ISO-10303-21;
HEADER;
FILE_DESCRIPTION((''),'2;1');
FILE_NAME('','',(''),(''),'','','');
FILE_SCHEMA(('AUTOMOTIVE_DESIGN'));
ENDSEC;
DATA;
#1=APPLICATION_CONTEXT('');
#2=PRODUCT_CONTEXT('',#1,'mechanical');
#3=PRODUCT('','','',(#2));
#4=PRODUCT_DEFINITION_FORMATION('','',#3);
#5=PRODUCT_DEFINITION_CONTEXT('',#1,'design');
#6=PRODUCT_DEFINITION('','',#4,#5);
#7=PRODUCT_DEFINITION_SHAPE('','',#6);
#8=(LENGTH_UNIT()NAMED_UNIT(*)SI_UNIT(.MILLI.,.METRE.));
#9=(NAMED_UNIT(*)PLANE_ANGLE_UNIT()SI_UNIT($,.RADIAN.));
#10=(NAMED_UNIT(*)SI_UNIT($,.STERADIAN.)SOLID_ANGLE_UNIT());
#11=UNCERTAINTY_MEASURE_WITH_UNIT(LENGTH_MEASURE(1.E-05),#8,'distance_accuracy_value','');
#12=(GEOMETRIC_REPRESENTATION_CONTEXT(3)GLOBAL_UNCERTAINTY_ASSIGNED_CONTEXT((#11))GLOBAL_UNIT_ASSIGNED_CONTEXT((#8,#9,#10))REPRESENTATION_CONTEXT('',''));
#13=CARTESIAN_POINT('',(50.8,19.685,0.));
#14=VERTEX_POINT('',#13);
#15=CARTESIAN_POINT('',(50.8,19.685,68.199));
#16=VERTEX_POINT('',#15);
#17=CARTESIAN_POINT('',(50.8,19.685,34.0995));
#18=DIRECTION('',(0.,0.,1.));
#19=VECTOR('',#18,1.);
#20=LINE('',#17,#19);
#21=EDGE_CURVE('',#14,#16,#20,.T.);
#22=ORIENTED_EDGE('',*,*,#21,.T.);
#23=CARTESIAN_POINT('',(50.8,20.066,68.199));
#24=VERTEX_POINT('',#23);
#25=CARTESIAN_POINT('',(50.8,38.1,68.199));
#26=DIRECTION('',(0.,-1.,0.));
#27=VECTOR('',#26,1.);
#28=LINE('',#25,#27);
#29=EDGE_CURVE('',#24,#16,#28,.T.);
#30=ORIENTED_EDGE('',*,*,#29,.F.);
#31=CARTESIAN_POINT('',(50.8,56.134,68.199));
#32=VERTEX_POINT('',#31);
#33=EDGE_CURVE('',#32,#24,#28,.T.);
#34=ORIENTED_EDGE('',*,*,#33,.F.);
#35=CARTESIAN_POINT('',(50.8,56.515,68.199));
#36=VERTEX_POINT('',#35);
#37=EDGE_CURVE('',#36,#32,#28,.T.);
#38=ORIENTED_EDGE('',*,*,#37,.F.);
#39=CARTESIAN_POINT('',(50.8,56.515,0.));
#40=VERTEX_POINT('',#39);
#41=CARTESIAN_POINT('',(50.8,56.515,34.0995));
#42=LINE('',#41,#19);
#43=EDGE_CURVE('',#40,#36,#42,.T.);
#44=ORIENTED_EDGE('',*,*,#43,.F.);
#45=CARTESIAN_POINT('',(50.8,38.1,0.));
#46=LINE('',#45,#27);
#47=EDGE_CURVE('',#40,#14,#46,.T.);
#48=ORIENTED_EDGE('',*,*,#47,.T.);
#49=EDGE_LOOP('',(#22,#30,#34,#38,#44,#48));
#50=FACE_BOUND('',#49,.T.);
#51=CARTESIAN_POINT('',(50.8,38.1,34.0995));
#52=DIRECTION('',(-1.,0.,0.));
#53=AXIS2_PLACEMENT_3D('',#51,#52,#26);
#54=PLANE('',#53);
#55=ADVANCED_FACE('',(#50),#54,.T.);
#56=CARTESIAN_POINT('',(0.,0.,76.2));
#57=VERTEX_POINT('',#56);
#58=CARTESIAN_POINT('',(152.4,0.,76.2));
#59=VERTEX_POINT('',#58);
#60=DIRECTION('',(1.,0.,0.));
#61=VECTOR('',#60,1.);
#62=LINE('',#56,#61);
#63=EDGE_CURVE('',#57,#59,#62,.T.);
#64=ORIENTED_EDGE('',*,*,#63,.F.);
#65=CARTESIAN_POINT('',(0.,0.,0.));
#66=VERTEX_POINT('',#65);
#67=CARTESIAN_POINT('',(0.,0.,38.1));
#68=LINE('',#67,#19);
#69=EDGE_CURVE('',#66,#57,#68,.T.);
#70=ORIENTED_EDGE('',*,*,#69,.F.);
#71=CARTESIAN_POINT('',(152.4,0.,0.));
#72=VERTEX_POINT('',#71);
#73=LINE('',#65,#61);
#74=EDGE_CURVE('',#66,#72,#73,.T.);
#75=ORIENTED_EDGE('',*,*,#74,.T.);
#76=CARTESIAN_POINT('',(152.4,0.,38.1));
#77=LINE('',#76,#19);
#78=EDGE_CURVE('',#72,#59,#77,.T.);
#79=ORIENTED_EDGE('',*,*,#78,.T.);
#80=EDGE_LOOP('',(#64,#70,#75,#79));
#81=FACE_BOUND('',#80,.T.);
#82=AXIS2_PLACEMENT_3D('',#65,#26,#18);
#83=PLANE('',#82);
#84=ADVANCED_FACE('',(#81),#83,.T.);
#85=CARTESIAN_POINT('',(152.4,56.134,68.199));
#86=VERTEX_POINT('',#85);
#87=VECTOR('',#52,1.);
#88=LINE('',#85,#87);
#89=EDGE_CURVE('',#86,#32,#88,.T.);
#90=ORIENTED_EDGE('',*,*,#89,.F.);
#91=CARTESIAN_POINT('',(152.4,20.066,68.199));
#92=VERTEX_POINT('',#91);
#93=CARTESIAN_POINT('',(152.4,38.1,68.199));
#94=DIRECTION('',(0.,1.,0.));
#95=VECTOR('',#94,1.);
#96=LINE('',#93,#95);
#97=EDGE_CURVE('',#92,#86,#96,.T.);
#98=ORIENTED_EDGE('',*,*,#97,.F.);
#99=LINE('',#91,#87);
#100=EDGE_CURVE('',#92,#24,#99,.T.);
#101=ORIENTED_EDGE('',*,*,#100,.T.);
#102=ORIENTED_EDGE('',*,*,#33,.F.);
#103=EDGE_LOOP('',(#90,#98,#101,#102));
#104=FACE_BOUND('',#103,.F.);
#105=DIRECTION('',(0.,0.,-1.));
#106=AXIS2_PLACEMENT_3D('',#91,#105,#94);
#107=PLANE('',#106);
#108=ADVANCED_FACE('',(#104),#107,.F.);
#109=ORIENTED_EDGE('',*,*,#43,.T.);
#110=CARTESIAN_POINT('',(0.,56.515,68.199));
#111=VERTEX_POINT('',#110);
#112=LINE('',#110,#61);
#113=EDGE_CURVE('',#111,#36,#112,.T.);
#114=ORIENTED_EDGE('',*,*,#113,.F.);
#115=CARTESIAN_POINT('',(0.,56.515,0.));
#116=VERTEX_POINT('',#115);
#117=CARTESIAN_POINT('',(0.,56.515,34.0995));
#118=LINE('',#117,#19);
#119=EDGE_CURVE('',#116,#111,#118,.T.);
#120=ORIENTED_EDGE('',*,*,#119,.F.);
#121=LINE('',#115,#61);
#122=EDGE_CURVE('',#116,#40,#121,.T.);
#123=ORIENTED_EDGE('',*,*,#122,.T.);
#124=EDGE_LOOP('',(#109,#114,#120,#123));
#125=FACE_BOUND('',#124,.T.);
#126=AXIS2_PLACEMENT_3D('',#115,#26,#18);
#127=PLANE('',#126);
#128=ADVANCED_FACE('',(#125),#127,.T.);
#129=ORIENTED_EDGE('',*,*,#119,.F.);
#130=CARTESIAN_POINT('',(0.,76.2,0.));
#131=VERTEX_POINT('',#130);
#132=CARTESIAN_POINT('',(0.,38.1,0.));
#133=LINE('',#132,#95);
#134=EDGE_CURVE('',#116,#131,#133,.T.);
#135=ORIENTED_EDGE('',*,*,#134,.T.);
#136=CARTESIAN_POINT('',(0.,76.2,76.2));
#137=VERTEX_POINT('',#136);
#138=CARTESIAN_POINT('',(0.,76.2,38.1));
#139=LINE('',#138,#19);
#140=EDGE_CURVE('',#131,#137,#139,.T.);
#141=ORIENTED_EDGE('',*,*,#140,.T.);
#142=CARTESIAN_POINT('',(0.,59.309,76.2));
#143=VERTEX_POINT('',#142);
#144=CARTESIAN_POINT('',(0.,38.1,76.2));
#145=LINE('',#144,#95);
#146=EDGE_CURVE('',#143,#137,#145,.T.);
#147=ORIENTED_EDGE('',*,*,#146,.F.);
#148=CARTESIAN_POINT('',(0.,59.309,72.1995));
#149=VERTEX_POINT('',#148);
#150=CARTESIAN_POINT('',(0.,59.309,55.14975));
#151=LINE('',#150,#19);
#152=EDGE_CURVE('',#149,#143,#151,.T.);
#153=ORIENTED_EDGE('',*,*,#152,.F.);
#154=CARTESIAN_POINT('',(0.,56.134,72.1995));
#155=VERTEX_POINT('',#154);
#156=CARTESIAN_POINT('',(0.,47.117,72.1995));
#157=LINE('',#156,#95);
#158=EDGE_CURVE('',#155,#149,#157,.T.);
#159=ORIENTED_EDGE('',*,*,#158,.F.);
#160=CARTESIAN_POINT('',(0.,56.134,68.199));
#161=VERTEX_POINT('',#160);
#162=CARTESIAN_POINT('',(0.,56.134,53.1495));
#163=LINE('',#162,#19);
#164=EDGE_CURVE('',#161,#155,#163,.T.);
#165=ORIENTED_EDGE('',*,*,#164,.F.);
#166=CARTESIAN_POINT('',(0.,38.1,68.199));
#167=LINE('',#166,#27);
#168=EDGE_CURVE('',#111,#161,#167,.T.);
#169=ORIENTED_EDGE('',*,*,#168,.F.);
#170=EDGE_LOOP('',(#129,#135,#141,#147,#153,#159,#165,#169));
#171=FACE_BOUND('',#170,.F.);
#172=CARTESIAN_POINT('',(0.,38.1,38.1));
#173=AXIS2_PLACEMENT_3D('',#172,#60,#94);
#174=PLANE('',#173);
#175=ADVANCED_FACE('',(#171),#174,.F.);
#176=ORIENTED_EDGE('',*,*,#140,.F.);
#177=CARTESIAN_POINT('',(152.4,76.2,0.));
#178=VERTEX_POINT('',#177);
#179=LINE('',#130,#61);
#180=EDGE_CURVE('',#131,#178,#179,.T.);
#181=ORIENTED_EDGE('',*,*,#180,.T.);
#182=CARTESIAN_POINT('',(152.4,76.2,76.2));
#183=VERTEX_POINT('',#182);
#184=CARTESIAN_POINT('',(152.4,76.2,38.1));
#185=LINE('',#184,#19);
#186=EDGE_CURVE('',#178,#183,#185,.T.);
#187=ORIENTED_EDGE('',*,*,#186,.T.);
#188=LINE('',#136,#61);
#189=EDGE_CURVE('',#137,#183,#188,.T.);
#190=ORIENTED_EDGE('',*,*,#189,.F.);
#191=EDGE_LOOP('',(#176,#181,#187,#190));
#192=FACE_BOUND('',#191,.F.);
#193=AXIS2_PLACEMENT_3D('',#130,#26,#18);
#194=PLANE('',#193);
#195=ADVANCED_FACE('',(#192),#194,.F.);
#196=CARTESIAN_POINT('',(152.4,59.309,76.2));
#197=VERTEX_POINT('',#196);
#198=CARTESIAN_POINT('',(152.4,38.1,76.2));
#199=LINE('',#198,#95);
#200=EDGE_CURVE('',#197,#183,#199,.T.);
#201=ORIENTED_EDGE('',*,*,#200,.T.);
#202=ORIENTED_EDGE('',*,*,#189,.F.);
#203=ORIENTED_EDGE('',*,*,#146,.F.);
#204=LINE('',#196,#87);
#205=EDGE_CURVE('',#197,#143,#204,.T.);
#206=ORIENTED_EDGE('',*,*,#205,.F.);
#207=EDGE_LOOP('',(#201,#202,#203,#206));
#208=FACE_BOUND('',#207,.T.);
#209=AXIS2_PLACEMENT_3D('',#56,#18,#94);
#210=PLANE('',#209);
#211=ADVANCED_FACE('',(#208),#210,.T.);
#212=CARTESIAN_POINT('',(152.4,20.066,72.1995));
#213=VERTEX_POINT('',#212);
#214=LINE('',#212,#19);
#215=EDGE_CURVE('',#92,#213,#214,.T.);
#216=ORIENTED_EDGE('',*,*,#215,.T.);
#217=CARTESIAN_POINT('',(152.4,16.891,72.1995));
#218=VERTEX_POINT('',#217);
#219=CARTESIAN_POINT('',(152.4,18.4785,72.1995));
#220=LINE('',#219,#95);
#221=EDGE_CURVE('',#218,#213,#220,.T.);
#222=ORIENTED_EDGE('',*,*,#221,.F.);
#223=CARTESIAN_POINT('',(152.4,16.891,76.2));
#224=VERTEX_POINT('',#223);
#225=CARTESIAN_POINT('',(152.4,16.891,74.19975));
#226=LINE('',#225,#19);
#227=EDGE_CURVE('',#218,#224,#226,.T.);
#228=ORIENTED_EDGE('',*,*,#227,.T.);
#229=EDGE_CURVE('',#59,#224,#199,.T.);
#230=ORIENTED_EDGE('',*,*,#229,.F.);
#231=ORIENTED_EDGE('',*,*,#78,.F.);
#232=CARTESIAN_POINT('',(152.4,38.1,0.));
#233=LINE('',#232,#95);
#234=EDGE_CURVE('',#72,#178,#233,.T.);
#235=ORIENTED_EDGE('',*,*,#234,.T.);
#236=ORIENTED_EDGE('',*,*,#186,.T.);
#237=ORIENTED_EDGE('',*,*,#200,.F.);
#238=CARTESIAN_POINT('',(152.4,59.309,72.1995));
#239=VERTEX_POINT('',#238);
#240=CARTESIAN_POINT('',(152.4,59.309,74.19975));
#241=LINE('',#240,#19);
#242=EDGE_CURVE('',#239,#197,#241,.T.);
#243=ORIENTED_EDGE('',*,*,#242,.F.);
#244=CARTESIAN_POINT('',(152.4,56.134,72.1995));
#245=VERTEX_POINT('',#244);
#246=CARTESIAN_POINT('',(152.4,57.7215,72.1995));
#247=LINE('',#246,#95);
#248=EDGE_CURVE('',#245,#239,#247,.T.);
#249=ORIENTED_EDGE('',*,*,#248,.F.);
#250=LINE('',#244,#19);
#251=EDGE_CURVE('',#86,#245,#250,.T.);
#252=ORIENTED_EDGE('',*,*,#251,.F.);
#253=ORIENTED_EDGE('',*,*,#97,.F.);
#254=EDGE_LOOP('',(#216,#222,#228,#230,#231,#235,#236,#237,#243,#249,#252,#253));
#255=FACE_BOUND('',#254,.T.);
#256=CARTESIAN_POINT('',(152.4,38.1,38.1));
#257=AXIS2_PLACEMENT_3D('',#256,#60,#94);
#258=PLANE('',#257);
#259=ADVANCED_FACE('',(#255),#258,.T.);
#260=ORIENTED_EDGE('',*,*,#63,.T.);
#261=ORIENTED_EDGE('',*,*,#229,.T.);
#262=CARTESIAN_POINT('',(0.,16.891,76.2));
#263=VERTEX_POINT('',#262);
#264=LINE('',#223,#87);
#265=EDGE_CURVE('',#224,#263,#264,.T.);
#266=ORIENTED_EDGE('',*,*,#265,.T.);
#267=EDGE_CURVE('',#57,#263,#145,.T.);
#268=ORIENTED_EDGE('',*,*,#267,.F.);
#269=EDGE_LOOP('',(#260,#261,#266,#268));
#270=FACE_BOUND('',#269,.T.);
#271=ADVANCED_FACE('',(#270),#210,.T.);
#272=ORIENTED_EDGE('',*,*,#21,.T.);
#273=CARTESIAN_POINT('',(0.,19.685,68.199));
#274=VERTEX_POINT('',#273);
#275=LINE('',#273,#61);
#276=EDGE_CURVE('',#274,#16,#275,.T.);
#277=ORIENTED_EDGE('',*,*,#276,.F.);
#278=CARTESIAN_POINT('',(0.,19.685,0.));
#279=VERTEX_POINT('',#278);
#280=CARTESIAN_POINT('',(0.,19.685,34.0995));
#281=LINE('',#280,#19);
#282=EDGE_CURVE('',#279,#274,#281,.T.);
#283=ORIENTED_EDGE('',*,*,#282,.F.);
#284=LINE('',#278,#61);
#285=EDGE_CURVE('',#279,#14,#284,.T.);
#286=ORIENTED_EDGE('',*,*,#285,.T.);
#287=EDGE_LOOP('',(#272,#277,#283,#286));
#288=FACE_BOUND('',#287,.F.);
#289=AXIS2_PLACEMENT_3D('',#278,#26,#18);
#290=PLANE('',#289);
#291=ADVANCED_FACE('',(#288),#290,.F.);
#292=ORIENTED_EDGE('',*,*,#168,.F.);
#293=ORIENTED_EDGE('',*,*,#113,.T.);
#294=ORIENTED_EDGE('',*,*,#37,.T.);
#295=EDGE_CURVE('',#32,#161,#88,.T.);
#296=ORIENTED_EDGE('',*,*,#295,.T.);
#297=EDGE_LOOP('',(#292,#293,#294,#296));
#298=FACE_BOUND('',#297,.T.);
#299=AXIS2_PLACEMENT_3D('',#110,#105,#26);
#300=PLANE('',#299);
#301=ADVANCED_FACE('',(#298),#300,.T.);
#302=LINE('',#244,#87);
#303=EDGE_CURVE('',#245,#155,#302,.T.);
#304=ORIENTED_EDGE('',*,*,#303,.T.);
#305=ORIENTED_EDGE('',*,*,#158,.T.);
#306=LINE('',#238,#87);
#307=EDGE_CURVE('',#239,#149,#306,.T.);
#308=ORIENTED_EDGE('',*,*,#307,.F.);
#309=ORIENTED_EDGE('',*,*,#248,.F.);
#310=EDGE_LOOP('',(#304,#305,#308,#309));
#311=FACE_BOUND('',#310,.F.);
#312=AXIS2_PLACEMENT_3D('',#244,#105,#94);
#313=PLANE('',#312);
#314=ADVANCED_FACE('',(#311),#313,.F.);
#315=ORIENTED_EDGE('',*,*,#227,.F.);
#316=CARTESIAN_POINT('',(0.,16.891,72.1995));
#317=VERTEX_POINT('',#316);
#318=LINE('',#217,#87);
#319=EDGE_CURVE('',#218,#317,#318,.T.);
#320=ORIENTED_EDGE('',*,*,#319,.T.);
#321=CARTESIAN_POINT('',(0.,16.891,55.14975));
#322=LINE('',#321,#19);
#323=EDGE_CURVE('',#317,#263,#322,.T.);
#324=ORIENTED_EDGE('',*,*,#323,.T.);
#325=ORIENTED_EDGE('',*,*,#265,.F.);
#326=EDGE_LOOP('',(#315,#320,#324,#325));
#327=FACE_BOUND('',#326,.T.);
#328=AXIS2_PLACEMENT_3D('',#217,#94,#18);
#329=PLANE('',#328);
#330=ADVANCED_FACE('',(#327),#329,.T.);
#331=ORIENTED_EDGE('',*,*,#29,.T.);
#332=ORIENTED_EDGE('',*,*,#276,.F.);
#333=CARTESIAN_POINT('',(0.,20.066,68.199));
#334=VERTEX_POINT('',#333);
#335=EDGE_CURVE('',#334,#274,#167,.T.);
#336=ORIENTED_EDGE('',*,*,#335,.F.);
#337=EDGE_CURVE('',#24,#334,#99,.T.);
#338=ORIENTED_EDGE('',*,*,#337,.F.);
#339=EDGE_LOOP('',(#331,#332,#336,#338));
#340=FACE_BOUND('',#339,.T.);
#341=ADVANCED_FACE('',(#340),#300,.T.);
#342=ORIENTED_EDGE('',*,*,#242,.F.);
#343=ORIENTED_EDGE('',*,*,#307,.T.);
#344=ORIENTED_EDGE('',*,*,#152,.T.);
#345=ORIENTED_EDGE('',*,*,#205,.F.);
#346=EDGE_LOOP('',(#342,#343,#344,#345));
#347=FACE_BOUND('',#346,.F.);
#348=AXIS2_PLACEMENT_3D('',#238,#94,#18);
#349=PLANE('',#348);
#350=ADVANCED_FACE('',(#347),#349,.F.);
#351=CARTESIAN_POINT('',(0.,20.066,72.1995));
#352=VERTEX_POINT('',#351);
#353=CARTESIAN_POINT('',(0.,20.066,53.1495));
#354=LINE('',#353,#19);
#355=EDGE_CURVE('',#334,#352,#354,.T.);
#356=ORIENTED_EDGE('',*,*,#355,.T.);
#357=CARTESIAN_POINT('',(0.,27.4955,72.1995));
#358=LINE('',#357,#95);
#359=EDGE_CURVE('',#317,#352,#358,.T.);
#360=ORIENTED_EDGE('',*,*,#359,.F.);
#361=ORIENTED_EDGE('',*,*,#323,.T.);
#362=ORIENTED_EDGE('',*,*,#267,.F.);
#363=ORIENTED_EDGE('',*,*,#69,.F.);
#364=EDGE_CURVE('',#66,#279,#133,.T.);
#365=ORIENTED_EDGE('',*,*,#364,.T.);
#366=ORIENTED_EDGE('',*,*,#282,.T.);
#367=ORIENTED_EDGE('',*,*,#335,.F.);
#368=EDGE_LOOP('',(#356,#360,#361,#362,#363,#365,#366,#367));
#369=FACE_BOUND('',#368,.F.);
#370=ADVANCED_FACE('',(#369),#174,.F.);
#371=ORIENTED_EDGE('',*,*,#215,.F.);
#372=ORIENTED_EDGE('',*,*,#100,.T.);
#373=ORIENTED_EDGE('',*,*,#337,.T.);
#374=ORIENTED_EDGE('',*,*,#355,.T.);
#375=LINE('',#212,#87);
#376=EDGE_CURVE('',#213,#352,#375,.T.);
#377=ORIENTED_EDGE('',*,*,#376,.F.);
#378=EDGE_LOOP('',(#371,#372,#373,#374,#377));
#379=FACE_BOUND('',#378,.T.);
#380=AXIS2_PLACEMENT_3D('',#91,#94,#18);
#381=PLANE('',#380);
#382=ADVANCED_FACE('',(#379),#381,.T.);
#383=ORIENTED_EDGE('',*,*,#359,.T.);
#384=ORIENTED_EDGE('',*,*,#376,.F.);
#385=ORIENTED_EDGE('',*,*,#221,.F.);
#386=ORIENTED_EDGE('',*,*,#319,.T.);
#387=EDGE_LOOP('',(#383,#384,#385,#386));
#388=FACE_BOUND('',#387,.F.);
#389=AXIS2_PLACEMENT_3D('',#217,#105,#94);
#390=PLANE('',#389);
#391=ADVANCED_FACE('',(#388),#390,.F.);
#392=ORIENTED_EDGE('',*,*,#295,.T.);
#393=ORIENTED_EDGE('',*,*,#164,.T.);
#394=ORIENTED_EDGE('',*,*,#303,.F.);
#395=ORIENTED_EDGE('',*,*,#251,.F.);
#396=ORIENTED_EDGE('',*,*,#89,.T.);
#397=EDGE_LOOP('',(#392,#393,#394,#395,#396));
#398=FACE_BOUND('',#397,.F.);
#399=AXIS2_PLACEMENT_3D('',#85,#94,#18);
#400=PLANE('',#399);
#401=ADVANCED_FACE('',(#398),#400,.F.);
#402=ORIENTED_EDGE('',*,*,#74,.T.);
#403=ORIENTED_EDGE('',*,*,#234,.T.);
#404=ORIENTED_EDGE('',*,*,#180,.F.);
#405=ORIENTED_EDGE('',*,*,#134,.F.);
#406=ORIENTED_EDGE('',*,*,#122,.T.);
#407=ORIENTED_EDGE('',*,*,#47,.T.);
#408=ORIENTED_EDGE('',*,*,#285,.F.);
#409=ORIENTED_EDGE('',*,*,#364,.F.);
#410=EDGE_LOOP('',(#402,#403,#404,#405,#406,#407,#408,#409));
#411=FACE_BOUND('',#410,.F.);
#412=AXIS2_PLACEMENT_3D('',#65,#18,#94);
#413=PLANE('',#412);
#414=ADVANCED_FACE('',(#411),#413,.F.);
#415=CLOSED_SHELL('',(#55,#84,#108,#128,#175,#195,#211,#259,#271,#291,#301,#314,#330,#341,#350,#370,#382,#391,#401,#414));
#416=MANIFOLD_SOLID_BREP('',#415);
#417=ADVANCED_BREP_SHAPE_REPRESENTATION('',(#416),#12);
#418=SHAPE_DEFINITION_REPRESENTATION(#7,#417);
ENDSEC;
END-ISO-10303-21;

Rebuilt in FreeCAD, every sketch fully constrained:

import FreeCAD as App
import Part
import Sketcher

V = App.Vector
Q = App.Units.Quantity


def add_polygon(sketch, points):
    """Adds a closed chain of lines whose ends are joined by coincident constraints."""
    first, n = sketch.GeometryCount, len(points)
    for a, b in zip(points, points[1:] + points[:1]):
        sketch.addGeometry(Part.LineSegment(App.Vector(*a, 0), App.Vector(*b, 0)), False)
    for i in range(n):
        sketch.addConstraint(Sketcher.Constraint("Coincident", first + i, 2, first + (i + 1) % n, 1))

doc = App.newDocument("Part")
params = doc.addObject("Spreadsheet::Sheet", "Params")
for row, (alias, value) in enumerate([
    ("sketch1_width", "3 in"),
    ("pad1_length", "6 in"),
    ("sketch2_width", "1.42 in"),
    ("sketch2_height", "0.315 in"),
    ("sketch3_width", "0.125 in"),
    ("sketch4_width", "1.45 in"),
    ("sketch4_height", "2.685 in"),
    ("pocket3_length", "2 in"),
], start=1):
    params.set(f"A{row}", alias)
    params.set(f"B{row}", "=" + value)
    params.setAlias(f"B{row}", alias)

body = doc.addObject("PartDesign::Body", "Body")

sketch1 = body.newObject("Sketcher::SketchObject", "Sketch")
sketch1.AttachmentSupport = (doc.getObject("YZ_Plane"), [""])
sketch1.MapMode = "FlatFace"
add_polygon(sketch1, [(0, 76), (0, 0), (76, 0), (76, 76)])
sketch1.addConstraint([
    Sketcher.Constraint("Vertical", 0),
    Sketcher.Constraint("Horizontal", 1),
    Sketcher.Constraint("Vertical", 2),
    Sketcher.Constraint("Horizontal", 3),
    Sketcher.Constraint("Coincident", 0, 2, -1, 1),
    Sketcher.Constraint("Equal", 3, 0),
    Sketcher.Constraint("DistanceX", 1, 1, 1, 2, Q("3 in")),
])
sketch1.setExpression("Constraints[10]", "Params.sketch1_width")
pad1 = body.newObject("PartDesign::Pad", "Pad")
pad1.Profile = sketch1
pad1.setExpression("Length", "Params.pad1_length")

sketch2 = body.newObject("Sketcher::SketchObject", "Sketch001")
sketch2.AttachmentSupport = (doc.getObject("YZ_Plane"), [""])
sketch2.MapMode = "FlatFace"
sketch2.AttachmentOffset = App.Placement(V(0, 0, 6 * 25.4), App.Rotation())
add_polygon(sketch2, [(20, 76), (20, 68), (56, 68), (56, 76)])
sketch2.addConstraint([
    Sketcher.Constraint("Vertical", 0),
    Sketcher.Constraint("Horizontal", 1),
    Sketcher.Constraint("Vertical", 2),
    Sketcher.Constraint("Horizontal", 3),
    Sketcher.Constraint("DistanceY", -1, 1, 2, 2, Q("3 in")),
    Sketcher.Constraint("DistanceX", 1, 1, 1, 2, Q("1.42 in")),
    Sketcher.Constraint("DistanceY", 0, 2, 0, 1, Q("0.315 in")),
    Sketcher.Constraint("DistanceX", -1, 1, 0, 2, Q("0.79 in")),
])
sketch2.setExpression("Constraints[9]", "Params.sketch2_width")
sketch2.setExpression("Constraints[10]", "Params.sketch2_height")
pocket1 = body.newObject("PartDesign::Pocket", "Pocket")
pocket1.Profile = sketch2
pocket1.Type = "ThroughAll"

sketch3 = body.newObject("Sketcher::SketchObject", "Sketch002")
sketch3.AttachmentSupport = (doc.getObject("YZ_Plane"), [""])
sketch3.MapMode = "FlatFace"
sketch3.AttachmentOffset = App.Placement(V(0, 0, 6 * 25.4), App.Rotation())
add_polygon(sketch3, [(16.9, 76.2), (16.9, 72.2), (20.1, 72.2), (20.1, 76.2)])
add_polygon(sketch3, [(56.1, 76.2), (56.1, 72.2), (59.3, 72.2), (59.3, 76.2)])
sketch3.addConstraint([
    Sketcher.Constraint("Vertical", 0),
    Sketcher.Constraint("Horizontal", 1),
    Sketcher.Constraint("Vertical", 2),
    Sketcher.Constraint("Horizontal", 3),
    Sketcher.Constraint("Vertical", 4),
    Sketcher.Constraint("Horizontal", 5),
    Sketcher.Constraint("Vertical", 6),
    Sketcher.Constraint("Horizontal", 7),
    Sketcher.Constraint("Horizontal", 1, 2, 4, 2),
    Sketcher.Constraint("Horizontal", 3, 2, 6, 2),
    Sketcher.Constraint("Equal", 3, 5),
    Sketcher.Constraint("DistanceY", -1, 1, 2, 2, Q("3 in")),
    Sketcher.Constraint("DistanceX", 1, 1, 1, 2, Q("0.125 in")),
    Sketcher.Constraint("DistanceX", -1, 1, 1, 2, Q("0.79 in")),
    Sketcher.Constraint("DistanceX", -1, 1, 4, 2, Q("2.21 in")),
    Sketcher.Constraint("DistanceY", 0, 2, 0, 1, Q("0.1575 in")),
])
sketch3.setExpression("Constraints[20]", "Params.sketch3_width")
pocket2 = body.newObject("PartDesign::Pocket", "Pocket001")
pocket2.Profile = sketch3
pocket2.Type = "ThroughAll"

sketch4 = body.newObject("Sketcher::SketchObject", "Sketch003")
sketch4.AttachmentSupport = (doc.getObject("YZ_Plane"), [""])
sketch4.MapMode = "FlatFace"
add_polygon(sketch4, [(57, 68), (57, 0), (20, 0), (20, 68)])
sketch4.addConstraint([
    Sketcher.Constraint("Vertical", 0),
    Sketcher.Constraint("Horizontal", 1),
    Sketcher.Constraint("Vertical", 2),
    Sketcher.Constraint("Horizontal", 3),
    Sketcher.Constraint("PointOnObject", 0, 2, -1),
    Sketcher.Constraint("DistanceX", 1, 2, 1, 1, Q("1.45 in")),
    Sketcher.Constraint("DistanceY", 0, 2, 0, 1, Q("2.685 in")),
    Sketcher.Constraint("DistanceX", -1, 1, 0, 2, Q("2.225 in")),
])
sketch4.setExpression("Constraints[9]", "Params.sketch4_width")
sketch4.setExpression("Constraints[10]", "Params.sketch4_height")
pocket3 = body.newObject("PartDesign::Pocket", "Pocket002")
pocket3.Profile = sketch4
pocket3.setExpression("Length", "Params.pocket3_length")
pocket3.Reversed = True

doc.recompute()
